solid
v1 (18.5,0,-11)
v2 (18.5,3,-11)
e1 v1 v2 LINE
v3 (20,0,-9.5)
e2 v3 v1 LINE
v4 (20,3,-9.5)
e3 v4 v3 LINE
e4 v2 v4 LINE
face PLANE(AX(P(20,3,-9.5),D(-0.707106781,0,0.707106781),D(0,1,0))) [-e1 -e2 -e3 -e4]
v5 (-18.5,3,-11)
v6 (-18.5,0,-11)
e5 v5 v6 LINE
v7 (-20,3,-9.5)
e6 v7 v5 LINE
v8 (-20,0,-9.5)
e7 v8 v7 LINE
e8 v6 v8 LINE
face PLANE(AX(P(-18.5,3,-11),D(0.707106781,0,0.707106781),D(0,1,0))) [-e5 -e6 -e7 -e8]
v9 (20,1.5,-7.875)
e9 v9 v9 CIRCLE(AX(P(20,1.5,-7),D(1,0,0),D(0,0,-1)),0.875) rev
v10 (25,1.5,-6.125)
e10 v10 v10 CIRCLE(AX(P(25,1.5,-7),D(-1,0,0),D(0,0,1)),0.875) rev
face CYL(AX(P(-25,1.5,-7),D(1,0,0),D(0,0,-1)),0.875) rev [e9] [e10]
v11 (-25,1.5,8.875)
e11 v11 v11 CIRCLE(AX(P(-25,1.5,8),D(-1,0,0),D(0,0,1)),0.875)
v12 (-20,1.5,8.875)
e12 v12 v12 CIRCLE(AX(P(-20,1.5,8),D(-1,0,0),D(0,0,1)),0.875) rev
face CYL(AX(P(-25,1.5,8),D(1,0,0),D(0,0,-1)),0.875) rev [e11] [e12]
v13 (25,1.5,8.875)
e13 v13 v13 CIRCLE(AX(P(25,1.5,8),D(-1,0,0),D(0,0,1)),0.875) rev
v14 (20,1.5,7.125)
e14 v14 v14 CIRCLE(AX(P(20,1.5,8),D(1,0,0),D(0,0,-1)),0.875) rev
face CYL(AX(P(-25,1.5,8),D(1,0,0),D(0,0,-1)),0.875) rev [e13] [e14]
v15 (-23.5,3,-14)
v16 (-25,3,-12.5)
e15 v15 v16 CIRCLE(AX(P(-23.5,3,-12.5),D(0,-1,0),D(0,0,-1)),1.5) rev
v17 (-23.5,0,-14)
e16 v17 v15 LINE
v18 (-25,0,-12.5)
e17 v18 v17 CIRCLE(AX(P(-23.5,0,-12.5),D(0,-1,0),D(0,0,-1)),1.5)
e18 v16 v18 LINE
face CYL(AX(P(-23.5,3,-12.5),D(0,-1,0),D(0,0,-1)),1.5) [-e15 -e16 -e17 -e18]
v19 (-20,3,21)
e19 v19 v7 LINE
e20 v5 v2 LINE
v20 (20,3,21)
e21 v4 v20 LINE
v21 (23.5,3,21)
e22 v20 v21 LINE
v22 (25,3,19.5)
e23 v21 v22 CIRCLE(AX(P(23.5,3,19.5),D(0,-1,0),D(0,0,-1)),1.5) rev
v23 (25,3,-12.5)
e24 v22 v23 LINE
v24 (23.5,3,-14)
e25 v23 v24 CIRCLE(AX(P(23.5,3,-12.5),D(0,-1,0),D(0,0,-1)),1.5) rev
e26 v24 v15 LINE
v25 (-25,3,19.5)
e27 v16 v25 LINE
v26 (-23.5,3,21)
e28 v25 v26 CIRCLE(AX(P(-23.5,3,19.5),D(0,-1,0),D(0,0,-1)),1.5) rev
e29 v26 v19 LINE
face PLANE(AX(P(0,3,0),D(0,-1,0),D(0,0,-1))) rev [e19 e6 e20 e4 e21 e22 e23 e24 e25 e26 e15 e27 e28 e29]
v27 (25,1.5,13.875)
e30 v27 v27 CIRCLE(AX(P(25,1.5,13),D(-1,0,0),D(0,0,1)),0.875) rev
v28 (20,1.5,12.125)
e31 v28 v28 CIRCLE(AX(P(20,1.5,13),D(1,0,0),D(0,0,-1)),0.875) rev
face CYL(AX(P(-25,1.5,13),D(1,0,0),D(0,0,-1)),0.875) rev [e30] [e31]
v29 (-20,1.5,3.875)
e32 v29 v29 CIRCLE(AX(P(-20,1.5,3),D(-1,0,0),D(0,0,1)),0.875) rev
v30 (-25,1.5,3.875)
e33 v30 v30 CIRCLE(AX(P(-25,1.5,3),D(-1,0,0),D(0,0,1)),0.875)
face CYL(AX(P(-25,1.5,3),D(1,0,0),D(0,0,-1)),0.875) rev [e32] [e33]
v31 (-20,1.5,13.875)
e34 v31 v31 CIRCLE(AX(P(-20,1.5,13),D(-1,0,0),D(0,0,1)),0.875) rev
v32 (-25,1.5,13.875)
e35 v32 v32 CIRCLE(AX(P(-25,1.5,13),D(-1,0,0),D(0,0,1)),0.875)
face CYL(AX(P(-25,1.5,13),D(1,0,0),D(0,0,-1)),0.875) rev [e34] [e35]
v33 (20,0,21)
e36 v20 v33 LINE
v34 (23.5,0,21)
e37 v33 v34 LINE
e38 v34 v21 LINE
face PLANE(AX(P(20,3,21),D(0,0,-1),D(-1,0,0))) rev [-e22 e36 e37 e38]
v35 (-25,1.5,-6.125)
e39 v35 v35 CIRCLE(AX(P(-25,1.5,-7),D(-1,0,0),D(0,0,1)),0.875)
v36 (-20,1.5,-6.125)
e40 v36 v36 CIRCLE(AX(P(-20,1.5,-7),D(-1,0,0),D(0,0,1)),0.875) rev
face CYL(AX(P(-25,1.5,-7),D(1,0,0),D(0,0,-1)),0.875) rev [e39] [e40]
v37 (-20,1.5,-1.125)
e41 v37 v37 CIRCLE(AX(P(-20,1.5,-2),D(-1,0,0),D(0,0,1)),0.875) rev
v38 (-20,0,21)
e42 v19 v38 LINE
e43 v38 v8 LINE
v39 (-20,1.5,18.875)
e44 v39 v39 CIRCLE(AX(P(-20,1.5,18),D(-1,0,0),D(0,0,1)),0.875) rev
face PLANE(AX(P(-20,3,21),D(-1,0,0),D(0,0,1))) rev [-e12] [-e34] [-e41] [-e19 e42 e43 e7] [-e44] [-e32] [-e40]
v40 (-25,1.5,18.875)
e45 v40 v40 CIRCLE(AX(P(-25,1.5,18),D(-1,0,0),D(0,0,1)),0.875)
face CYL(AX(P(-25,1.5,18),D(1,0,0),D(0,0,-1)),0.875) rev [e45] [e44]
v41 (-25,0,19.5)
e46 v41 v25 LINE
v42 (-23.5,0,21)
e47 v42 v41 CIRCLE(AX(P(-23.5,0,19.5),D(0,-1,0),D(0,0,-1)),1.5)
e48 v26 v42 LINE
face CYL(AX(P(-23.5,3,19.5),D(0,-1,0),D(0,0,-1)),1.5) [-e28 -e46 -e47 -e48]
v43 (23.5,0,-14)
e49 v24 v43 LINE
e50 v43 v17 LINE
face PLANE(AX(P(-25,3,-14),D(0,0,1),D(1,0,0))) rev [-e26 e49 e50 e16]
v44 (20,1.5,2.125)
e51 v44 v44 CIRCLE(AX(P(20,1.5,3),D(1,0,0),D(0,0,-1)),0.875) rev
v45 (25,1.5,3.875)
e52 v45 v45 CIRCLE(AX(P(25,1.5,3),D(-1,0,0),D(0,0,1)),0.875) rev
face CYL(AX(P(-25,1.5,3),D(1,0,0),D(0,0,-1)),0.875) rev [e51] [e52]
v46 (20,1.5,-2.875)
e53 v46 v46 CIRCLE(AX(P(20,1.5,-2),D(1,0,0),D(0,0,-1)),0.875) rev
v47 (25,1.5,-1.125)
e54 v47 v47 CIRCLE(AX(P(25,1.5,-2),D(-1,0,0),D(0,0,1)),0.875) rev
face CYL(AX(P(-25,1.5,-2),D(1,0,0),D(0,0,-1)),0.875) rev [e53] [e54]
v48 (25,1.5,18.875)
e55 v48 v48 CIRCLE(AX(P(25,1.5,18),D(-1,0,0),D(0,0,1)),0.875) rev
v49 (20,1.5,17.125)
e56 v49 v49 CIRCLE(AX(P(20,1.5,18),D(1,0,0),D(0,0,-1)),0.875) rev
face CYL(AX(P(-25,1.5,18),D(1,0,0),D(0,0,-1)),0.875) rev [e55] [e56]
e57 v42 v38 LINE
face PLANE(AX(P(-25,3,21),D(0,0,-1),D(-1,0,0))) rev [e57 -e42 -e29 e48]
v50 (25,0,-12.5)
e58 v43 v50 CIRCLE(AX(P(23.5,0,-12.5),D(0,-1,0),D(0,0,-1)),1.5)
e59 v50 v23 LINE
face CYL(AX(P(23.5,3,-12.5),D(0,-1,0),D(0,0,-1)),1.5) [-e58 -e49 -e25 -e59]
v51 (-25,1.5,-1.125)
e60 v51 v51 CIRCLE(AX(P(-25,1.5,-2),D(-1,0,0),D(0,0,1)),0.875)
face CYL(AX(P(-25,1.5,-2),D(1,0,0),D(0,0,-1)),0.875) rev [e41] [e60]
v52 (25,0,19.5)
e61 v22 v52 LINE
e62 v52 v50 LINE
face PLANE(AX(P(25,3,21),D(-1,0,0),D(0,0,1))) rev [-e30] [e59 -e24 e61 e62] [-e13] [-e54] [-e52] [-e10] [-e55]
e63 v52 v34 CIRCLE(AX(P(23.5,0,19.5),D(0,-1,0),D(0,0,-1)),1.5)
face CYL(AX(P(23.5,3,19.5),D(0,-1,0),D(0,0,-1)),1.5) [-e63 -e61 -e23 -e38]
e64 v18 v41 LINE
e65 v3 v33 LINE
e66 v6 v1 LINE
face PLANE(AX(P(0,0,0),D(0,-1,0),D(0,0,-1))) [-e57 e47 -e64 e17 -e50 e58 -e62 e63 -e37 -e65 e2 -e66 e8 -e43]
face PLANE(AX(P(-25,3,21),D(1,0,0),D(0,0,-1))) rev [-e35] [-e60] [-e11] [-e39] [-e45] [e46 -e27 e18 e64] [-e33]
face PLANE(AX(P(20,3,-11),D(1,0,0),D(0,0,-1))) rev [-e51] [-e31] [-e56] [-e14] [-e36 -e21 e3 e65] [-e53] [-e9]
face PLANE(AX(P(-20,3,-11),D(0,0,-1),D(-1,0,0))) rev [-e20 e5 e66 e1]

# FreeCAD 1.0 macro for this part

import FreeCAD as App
import Part
import Sketcher
from FreeCAD import Vector
Q = App.Units.Quantity


def edges_at(feature, points):
    """Names of the edges that pass closest to the given points."""
    edges = feature.Shape.Edges
    near = lambda p: min(range(len(edges)), key=lambda i: edges[i].distToShape(Part.Vertex(*p))[0])
    return sorted({f"Edge{near(p) + 1}" for p in points})


def add_polygon(sketch, points):
    """Adds a closed chain of lines whose ends are joined by coincident constraints."""
    first, n = sketch.GeometryCount, len(points)
    for a, b in zip(points, points[1:] + points[:1]):
        sketch.addGeometry(Part.LineSegment(App.Vector(*a, 0), App.Vector(*b, 0)), False)
    for i in range(n):
        sketch.addConstraint(Sketcher.Constraint("Coincident", first + i, 2, first + (i + 1) % n, 1))

doc = App.newDocument("Part")
body = doc.addObject("PartDesign::Body", "Body")

sketch1 = body.newObject("Sketcher::SketchObject", "Sketch")
sketch1.AttachmentSupport = (doc.getObject("XZ_Plane"), [""])
sketch1.MapMode = "FlatFace"
add_polygon(sketch1, [(-25, 21), (-20, 21), (-20, -11), (20, -11), (20, 21), (25, 21), (25, -14), (-25, -14)])
sketch1.addConstraint([
    Sketcher.Constraint("Horizontal", 0),
    Sketcher.Constraint("Vertical", 1),
    Sketcher.Constraint("Horizontal", 2),
    Sketcher.Constraint("Vertical", 3),
    Sketcher.Constraint("Horizontal", 4),
    Sketcher.Constraint("Vertical", 5),
    Sketcher.Constraint("Horizontal", 6),
    Sketcher.Constraint("Vertical", 7),
    Sketcher.Constraint("Symmetric", 0, 2, 3, 2, -2),
    Sketcher.Constraint("Equal", 0, 4),
    Sketcher.Constraint("DistanceX", 0, 1, 0, 2, Q("5 mm")),
    Sketcher.Constraint("DistanceX", 2, 1, 2, 2, Q("40 mm")),
    Sketcher.Constraint("DistanceY", 1, 2, 1, 1, Q("32 mm")),
    Sketcher.Constraint("DistanceY", 5, 2, 5, 1, Q("35 mm")),
    Sketcher.Constraint("DistanceY", -1, 1, 0, 2, Q("21 mm")),
])
pad1 = body.newObject("PartDesign::Pad", "Pad")
pad1.Profile = sketch1
pad1.Length = 3
pad1.Reversed = True

sketch2 = body.newObject("Sketcher::SketchObject", "Sketch001")
sketch2.AttachmentSupport = (doc.getObject("YZ_Plane"), [""])
sketch2.MapMode = "FlatFace"
sketch2.AttachmentOffset = App.Placement(Vector(0, 0, 25), App.Rotation())
sketch2.addGeometry([
    Part.Circle(Vector(1.5, 18, 0), Vector(0, 0, 1), 0.9),
    Part.Circle(Vector(1.5, 13, 0), Vector(0, 0, 1), 0.9),
    Part.Circle(Vector(1.5, 8, 0), Vector(0, 0, 1), 0.9),
    Part.Circle(Vector(1.5, 3, 0), Vector(0, 0, 1), 0.9),
    Part.Circle(Vector(1.5, -2, 0), Vector(0, 0, 1), 0.9),
    Part.Circle(Vector(1.5, -7, 0), Vector(0, 0, 1), 0.9),
], False)
sketch2.addConstraint([
    Sketcher.Constraint("Equal", 0, 1),
    Sketcher.Constraint("Equal", 1, 2),
    Sketcher.Constraint("Equal", 2, 3),
    Sketcher.Constraint("Equal", 3, 4),
    Sketcher.Constraint("Equal", 4, 5),
    Sketcher.Constraint("Vertical", 0, 3, 1, 3),
    Sketcher.Constraint("Vertical", 1, 3, 2, 3),
    Sketcher.Constraint("Vertical", 2, 3, 3, 3),
    Sketcher.Constraint("Vertical", 3, 3, 4, 3),
    Sketcher.Constraint("Vertical", 4, 3, 5, 3),
    Sketcher.Constraint("Diameter", 0, Q("1.75 mm")),
    Sketcher.Constraint("DistanceY", -1, 1, 0, 3, Q("18 mm")),
    Sketcher.Constraint("DistanceY", -1, 1, 1, 3, Q("13 mm")),
    Sketcher.Constraint("DistanceY", -1, 1, 2, 3, Q("8 mm")),
    Sketcher.Constraint("DistanceY", -1, 1, 3, 3, Q("3 mm")),
    Sketcher.Constraint("DistanceY", 4, 3, -1, 1, Q("2 mm")),
    Sketcher.Constraint("DistanceY", 5, 3, -1, 1, Q("7 mm")),
    Sketcher.Constraint("DistanceX", -1, 1, 0, 3, Q("1.5 mm")),
])
pocket1 = body.newObject("PartDesign::Pocket", "Pocket")
pocket1.Profile = sketch2
pocket1.Type = "ThroughAll"
pocket1.Midplane = True
doc.recompute()

fillet = body.newObject("PartDesign::Fillet", "Fillet")
fillet.Base = (pocket1, edges_at(pocket1, [
    (25, 1.5, 21),
    (-25, 1.5, 21),
    (-25, 1.5, -14),
    (25, 1.5, -14),
]))
fillet.Radius = 1.5
doc.recompute()

chamfer = body.newObject("PartDesign::Chamfer", "Chamfer")
chamfer.Base = (fillet, edges_at(fillet, [(20, 1.5, -11), (-20, 1.5, -11)]))
chamfer.Size = 1.5

doc.recompute()
